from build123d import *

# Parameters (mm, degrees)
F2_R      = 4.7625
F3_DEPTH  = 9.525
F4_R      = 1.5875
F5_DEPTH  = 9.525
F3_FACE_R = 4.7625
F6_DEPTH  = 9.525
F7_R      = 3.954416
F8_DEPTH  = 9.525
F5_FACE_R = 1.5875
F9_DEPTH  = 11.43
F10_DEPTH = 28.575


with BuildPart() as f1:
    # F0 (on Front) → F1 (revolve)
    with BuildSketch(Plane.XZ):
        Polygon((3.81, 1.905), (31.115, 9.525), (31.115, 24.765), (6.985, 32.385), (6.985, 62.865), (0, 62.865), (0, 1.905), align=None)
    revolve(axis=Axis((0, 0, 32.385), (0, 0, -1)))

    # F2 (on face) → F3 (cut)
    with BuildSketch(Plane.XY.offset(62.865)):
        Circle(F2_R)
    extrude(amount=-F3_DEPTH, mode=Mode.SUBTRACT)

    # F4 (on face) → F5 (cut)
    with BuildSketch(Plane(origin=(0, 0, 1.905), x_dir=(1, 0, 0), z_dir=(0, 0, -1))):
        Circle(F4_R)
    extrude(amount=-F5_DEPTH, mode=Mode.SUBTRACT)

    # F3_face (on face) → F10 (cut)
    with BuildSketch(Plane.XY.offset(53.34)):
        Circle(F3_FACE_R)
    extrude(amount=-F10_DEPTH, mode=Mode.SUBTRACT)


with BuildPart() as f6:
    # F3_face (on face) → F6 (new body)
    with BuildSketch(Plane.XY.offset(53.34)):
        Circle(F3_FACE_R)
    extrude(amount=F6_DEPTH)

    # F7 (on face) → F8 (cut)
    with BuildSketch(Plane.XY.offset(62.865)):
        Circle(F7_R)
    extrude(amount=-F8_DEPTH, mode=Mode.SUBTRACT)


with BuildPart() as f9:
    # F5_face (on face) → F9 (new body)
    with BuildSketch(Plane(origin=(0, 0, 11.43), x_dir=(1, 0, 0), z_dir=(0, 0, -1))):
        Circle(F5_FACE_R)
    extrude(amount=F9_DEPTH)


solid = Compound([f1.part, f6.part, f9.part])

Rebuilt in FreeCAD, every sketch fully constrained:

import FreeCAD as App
import Part
import Sketcher
from FreeCAD import Vector
Q = App.Units.Quantity

doc = App.newDocument("Part")
body = doc.addObject("PartDesign::Body", "Body")

# Sketch on XZ plane
sketch1 = body.newObject("Sketcher::SketchObject", "Sketch")
sketch1.AttachmentSupport = (doc.getObject("XZ_Plane"), [""])
sketch1.MapMode = "FlatFace"
sketch1.addGeometry(Part.LineSegment(Vector(3.81, 1.905, 0), Vector(31.115, 9.525, 0)), False)
sketch1.addGeometry(Part.LineSegment(Vector(31.115, 9.525, 0), Vector(31.115, 24.765, 0)), False)
sketch1.addGeometry(Part.LineSegment(Vector(31.115, 24.765, 0), Vector(6.985, 32.385, 0)), False)
sketch1.addGeometry(Part.LineSegment(Vector(6.985, 32.385, 0), Vector(6.985, 62.865, 0)), False)
sketch1.addGeometry(Part.LineSegment(Vector(6.985, 62.865, 0), Vector(0, 62.865, 0)), False)
sketch1.addGeometry(Part.LineSegment(Vector(0, 62.865, 0), Vector(0, 1.905, 0)), False)
sketch1.addGeometry(Part.LineSegment(Vector(0, 1.905, 0), Vector(3.81, 1.905, 0)), False)
sketch1.addConstraint(Sketcher.Constraint("Coincident", 0, 2, 1, 1))
sketch1.addConstraint(Sketcher.Constraint("Coincident", 1, 2, 2, 1))
sketch1.addConstraint(Sketcher.Constraint("Coincident", 2, 2, 3, 1))
sketch1.addConstraint(Sketcher.Constraint("Coincident", 3, 2, 4, 1))
sketch1.addConstraint(Sketcher.Constraint("Coincident", 4, 2, 5, 1))
sketch1.addConstraint(Sketcher.Constraint("Coincident", 5, 2, 6, 1))
sketch1.addConstraint(Sketcher.Constraint("Coincident", 6, 2, 0, 1))
sketch1.addConstraint(Sketcher.Constraint("Vertical", 1))
sketch1.addConstraint(Sketcher.Constraint("Vertical", 3))
sketch1.addConstraint(Sketcher.Constraint("Horizontal", 4))
sketch1.addConstraint(Sketcher.Constraint("Vertical", 5))
sketch1.addConstraint(Sketcher.Constraint("Horizontal", 6))
sketch1.addConstraint(Sketcher.Constraint("PointOnObject", 4, 2, -2))
sketch1.addConstraint(Sketcher.Constraint("DistanceY", 1, 1, 1, 2, Q("0.6 in")))
sketch1.addConstraint(Sketcher.Constraint("DistanceY", 3, 1, 3, 2, Q("1.2 in")))
sketch1.addConstraint(Sketcher.Constraint("DistanceY", 5, 2, 5, 1, Q("2.4 in")))
sketch1.addConstraint(Sketcher.Constraint("DistanceX", 6, 1, 6, 2, Q("0.15 in")))
sketch1.addConstraint(Sketcher.Constraint("DistanceY", 1, 2, 2, 2, Q("0.3 in")))
sketch1.addConstraint(Sketcher.Constraint("DistanceX", 4, 2, 4, 1, Q("0.275 in")))
sketch1.addConstraint(Sketcher.Constraint("DistanceX", 2, 2, 1, 2, Q("0.95 in")))
sketch1.addConstraint(Sketcher.Constraint("DistanceY", -1, 1, 0, 2, Q("0.375 in")))
revolution = body.newObject("PartDesign::Revolution", "Revolution")
revolution.Profile = sketch1
revolution.ReferenceAxis = (sketch1, ["V_Axis"])
revolution.Angle = 360

# Sketch on XY plane
sketch2 = body.newObject("Sketcher::SketchObject", "Sketch001")
sketch2.AttachmentSupport = (doc.getObject("XY_Plane"), [""])
sketch2.MapMode = "FlatFace"
sketch2.AttachmentOffset = App.Placement(Vector(0, 0, 2.475 * 25.4), App.Rotation())
sketch2.addGeometry(Part.Circle(Vector(0, 0, 0), Vector(0, 0, 1), 4.7625), False)
sketch2.addConstraint(Sketcher.Constraint("Coincident", 0, 3, -1, 1))
sketch2.addConstraint(Sketcher.Constraint("Diameter", 0, Q("0.375 in")))
pocket1 = body.newObject("PartDesign::Pocket", "Pocket")
pocket1.Profile = sketch2
pocket1.Length = Q("0.375 in")

# Sketch on XY plane
sketch3 = body.newObject("Sketcher::SketchObject", "Sketch002")
sketch3.AttachmentSupport = (doc.getObject("XY_Plane"), [""])
sketch3.MapMode = "FlatFace"
sketch3.AttachmentOffset = App.Placement(Vector(0, 0, 0.075 * 25.4), App.Rotation())
sketch3.addGeometry(Part.Circle(Vector(0, 0, 0), Vector(0, 0, 1), 1.5875), False)
sketch3.addConstraint(Sketcher.Constraint("Coincident", 0, 3, -1, 1))
sketch3.addConstraint(Sketcher.Constraint("Diameter", 0, Q("0.125 in")))
pocket2 = body.newObject("PartDesign::Pocket", "Pocket001")
pocket2.Profile = sketch3
pocket2.Length = Q("0.375 in")
pocket2.Reversed = True

# Sketch on XY plane
sketch4 = body.newObject("Sketcher::SketchObject", "Sketch003")
sketch4.AttachmentSupport = (doc.getObject("XY_Plane"), [""])
sketch4.MapMode = "FlatFace"
sketch4.AttachmentOffset = App.Placement(Vector(0, 0, 2.1 * 25.4), App.Rotation())
sketch4.addGeometry(Part.Circle(Vector(0, 0, 0), Vector(0, 0, 1), 4.7625), False)
sketch4.addConstraint(Sketcher.Constraint("Coincident", 0, 3, -1, 1))
sketch4.addConstraint(Sketcher.Constraint("Diameter", 0, Q("0.375 in")))
pocket3 = body.newObject("PartDesign::Pocket", "Pocket002")
pocket3.Profile = sketch4
pocket3.Length = Q("1.125 in")
body2 = doc.addObject("PartDesign::Body", "Body001")

# Sketch on XY plane
sketch5 = body2.newObject("Sketcher::SketchObject", "Sketch004")
sketch5.AttachmentSupport = (doc.getObject("XY_Plane001"), [""])
sketch5.MapMode = "FlatFace"
sketch5.AttachmentOffset = App.Placement(Vector(0, 0, 2.1 * 25.4), App.Rotation())
sketch5.addGeometry(Part.Circle(Vector(0, 0, 0), Vector(0, 0, 1), 4.7625), False)
sketch5.addConstraint(Sketcher.Constraint("Coincident", 0, 3, -1, 1))
sketch5.addConstraint(Sketcher.Constraint("Diameter", 0, Q("0.375 in")))
pad1 = body2.newObject("PartDesign::Pad", "Pad")
pad1.Profile = sketch5
pad1.Length = Q("0.375 in")

# Sketch on XY plane
sketch6 = body2.newObject("Sketcher::SketchObject", "Sketch005")
sketch6.AttachmentSupport = (doc.getObject("XY_Plane001"), [""])
sketch6.MapMode = "FlatFace"
sketch6.AttachmentOffset = App.Placement(Vector(0, 0, 2.475 * 25.4), App.Rotation())
sketch6.addGeometry(Part.Circle(Vector(0, 0, 0), Vector(0, 0, 1), 3.954416), False)
sketch6.addConstraint(Sketcher.Constraint("Coincident", 0, 3, -1, 1))
sketch6.addConstraint(Sketcher.Constraint("Diameter", 0, 7.908832))
pocket4 = body2.newObject("PartDesign::Pocket", "Pocket003")
pocket4.Profile = sketch6
pocket4.Length = Q("0.375 in")
body3 = doc.addObject("PartDesign::Body", "Body002")

# Sketch on XY plane
sketch7 = body3.newObject("Sketcher::SketchObject", "Sketch006")
sketch7.AttachmentSupport = (doc.getObject("XY_Plane002"), [""])
sketch7.MapMode = "FlatFace"
sketch7.AttachmentOffset = App.Placement(Vector(0, 0, 0.45 * 25.4), App.Rotation())
sketch7.addGeometry(Part.Circle(Vector(0, 0, 0), Vector(0, 0, 1), 1.5875), False)
sketch7.addConstraint(Sketcher.Constraint("Coincident", 0, 3, -1, 1))
sketch7.addConstraint(Sketcher.Constraint("Diameter", 0, Q("0.125 in")))
pad2 = body3.newObject("PartDesign::Pad", "Pad001")
pad2.Profile = sketch7
pad2.Length = Q("0.45 in")
pad2.Reversed = True

doc.recompute()
